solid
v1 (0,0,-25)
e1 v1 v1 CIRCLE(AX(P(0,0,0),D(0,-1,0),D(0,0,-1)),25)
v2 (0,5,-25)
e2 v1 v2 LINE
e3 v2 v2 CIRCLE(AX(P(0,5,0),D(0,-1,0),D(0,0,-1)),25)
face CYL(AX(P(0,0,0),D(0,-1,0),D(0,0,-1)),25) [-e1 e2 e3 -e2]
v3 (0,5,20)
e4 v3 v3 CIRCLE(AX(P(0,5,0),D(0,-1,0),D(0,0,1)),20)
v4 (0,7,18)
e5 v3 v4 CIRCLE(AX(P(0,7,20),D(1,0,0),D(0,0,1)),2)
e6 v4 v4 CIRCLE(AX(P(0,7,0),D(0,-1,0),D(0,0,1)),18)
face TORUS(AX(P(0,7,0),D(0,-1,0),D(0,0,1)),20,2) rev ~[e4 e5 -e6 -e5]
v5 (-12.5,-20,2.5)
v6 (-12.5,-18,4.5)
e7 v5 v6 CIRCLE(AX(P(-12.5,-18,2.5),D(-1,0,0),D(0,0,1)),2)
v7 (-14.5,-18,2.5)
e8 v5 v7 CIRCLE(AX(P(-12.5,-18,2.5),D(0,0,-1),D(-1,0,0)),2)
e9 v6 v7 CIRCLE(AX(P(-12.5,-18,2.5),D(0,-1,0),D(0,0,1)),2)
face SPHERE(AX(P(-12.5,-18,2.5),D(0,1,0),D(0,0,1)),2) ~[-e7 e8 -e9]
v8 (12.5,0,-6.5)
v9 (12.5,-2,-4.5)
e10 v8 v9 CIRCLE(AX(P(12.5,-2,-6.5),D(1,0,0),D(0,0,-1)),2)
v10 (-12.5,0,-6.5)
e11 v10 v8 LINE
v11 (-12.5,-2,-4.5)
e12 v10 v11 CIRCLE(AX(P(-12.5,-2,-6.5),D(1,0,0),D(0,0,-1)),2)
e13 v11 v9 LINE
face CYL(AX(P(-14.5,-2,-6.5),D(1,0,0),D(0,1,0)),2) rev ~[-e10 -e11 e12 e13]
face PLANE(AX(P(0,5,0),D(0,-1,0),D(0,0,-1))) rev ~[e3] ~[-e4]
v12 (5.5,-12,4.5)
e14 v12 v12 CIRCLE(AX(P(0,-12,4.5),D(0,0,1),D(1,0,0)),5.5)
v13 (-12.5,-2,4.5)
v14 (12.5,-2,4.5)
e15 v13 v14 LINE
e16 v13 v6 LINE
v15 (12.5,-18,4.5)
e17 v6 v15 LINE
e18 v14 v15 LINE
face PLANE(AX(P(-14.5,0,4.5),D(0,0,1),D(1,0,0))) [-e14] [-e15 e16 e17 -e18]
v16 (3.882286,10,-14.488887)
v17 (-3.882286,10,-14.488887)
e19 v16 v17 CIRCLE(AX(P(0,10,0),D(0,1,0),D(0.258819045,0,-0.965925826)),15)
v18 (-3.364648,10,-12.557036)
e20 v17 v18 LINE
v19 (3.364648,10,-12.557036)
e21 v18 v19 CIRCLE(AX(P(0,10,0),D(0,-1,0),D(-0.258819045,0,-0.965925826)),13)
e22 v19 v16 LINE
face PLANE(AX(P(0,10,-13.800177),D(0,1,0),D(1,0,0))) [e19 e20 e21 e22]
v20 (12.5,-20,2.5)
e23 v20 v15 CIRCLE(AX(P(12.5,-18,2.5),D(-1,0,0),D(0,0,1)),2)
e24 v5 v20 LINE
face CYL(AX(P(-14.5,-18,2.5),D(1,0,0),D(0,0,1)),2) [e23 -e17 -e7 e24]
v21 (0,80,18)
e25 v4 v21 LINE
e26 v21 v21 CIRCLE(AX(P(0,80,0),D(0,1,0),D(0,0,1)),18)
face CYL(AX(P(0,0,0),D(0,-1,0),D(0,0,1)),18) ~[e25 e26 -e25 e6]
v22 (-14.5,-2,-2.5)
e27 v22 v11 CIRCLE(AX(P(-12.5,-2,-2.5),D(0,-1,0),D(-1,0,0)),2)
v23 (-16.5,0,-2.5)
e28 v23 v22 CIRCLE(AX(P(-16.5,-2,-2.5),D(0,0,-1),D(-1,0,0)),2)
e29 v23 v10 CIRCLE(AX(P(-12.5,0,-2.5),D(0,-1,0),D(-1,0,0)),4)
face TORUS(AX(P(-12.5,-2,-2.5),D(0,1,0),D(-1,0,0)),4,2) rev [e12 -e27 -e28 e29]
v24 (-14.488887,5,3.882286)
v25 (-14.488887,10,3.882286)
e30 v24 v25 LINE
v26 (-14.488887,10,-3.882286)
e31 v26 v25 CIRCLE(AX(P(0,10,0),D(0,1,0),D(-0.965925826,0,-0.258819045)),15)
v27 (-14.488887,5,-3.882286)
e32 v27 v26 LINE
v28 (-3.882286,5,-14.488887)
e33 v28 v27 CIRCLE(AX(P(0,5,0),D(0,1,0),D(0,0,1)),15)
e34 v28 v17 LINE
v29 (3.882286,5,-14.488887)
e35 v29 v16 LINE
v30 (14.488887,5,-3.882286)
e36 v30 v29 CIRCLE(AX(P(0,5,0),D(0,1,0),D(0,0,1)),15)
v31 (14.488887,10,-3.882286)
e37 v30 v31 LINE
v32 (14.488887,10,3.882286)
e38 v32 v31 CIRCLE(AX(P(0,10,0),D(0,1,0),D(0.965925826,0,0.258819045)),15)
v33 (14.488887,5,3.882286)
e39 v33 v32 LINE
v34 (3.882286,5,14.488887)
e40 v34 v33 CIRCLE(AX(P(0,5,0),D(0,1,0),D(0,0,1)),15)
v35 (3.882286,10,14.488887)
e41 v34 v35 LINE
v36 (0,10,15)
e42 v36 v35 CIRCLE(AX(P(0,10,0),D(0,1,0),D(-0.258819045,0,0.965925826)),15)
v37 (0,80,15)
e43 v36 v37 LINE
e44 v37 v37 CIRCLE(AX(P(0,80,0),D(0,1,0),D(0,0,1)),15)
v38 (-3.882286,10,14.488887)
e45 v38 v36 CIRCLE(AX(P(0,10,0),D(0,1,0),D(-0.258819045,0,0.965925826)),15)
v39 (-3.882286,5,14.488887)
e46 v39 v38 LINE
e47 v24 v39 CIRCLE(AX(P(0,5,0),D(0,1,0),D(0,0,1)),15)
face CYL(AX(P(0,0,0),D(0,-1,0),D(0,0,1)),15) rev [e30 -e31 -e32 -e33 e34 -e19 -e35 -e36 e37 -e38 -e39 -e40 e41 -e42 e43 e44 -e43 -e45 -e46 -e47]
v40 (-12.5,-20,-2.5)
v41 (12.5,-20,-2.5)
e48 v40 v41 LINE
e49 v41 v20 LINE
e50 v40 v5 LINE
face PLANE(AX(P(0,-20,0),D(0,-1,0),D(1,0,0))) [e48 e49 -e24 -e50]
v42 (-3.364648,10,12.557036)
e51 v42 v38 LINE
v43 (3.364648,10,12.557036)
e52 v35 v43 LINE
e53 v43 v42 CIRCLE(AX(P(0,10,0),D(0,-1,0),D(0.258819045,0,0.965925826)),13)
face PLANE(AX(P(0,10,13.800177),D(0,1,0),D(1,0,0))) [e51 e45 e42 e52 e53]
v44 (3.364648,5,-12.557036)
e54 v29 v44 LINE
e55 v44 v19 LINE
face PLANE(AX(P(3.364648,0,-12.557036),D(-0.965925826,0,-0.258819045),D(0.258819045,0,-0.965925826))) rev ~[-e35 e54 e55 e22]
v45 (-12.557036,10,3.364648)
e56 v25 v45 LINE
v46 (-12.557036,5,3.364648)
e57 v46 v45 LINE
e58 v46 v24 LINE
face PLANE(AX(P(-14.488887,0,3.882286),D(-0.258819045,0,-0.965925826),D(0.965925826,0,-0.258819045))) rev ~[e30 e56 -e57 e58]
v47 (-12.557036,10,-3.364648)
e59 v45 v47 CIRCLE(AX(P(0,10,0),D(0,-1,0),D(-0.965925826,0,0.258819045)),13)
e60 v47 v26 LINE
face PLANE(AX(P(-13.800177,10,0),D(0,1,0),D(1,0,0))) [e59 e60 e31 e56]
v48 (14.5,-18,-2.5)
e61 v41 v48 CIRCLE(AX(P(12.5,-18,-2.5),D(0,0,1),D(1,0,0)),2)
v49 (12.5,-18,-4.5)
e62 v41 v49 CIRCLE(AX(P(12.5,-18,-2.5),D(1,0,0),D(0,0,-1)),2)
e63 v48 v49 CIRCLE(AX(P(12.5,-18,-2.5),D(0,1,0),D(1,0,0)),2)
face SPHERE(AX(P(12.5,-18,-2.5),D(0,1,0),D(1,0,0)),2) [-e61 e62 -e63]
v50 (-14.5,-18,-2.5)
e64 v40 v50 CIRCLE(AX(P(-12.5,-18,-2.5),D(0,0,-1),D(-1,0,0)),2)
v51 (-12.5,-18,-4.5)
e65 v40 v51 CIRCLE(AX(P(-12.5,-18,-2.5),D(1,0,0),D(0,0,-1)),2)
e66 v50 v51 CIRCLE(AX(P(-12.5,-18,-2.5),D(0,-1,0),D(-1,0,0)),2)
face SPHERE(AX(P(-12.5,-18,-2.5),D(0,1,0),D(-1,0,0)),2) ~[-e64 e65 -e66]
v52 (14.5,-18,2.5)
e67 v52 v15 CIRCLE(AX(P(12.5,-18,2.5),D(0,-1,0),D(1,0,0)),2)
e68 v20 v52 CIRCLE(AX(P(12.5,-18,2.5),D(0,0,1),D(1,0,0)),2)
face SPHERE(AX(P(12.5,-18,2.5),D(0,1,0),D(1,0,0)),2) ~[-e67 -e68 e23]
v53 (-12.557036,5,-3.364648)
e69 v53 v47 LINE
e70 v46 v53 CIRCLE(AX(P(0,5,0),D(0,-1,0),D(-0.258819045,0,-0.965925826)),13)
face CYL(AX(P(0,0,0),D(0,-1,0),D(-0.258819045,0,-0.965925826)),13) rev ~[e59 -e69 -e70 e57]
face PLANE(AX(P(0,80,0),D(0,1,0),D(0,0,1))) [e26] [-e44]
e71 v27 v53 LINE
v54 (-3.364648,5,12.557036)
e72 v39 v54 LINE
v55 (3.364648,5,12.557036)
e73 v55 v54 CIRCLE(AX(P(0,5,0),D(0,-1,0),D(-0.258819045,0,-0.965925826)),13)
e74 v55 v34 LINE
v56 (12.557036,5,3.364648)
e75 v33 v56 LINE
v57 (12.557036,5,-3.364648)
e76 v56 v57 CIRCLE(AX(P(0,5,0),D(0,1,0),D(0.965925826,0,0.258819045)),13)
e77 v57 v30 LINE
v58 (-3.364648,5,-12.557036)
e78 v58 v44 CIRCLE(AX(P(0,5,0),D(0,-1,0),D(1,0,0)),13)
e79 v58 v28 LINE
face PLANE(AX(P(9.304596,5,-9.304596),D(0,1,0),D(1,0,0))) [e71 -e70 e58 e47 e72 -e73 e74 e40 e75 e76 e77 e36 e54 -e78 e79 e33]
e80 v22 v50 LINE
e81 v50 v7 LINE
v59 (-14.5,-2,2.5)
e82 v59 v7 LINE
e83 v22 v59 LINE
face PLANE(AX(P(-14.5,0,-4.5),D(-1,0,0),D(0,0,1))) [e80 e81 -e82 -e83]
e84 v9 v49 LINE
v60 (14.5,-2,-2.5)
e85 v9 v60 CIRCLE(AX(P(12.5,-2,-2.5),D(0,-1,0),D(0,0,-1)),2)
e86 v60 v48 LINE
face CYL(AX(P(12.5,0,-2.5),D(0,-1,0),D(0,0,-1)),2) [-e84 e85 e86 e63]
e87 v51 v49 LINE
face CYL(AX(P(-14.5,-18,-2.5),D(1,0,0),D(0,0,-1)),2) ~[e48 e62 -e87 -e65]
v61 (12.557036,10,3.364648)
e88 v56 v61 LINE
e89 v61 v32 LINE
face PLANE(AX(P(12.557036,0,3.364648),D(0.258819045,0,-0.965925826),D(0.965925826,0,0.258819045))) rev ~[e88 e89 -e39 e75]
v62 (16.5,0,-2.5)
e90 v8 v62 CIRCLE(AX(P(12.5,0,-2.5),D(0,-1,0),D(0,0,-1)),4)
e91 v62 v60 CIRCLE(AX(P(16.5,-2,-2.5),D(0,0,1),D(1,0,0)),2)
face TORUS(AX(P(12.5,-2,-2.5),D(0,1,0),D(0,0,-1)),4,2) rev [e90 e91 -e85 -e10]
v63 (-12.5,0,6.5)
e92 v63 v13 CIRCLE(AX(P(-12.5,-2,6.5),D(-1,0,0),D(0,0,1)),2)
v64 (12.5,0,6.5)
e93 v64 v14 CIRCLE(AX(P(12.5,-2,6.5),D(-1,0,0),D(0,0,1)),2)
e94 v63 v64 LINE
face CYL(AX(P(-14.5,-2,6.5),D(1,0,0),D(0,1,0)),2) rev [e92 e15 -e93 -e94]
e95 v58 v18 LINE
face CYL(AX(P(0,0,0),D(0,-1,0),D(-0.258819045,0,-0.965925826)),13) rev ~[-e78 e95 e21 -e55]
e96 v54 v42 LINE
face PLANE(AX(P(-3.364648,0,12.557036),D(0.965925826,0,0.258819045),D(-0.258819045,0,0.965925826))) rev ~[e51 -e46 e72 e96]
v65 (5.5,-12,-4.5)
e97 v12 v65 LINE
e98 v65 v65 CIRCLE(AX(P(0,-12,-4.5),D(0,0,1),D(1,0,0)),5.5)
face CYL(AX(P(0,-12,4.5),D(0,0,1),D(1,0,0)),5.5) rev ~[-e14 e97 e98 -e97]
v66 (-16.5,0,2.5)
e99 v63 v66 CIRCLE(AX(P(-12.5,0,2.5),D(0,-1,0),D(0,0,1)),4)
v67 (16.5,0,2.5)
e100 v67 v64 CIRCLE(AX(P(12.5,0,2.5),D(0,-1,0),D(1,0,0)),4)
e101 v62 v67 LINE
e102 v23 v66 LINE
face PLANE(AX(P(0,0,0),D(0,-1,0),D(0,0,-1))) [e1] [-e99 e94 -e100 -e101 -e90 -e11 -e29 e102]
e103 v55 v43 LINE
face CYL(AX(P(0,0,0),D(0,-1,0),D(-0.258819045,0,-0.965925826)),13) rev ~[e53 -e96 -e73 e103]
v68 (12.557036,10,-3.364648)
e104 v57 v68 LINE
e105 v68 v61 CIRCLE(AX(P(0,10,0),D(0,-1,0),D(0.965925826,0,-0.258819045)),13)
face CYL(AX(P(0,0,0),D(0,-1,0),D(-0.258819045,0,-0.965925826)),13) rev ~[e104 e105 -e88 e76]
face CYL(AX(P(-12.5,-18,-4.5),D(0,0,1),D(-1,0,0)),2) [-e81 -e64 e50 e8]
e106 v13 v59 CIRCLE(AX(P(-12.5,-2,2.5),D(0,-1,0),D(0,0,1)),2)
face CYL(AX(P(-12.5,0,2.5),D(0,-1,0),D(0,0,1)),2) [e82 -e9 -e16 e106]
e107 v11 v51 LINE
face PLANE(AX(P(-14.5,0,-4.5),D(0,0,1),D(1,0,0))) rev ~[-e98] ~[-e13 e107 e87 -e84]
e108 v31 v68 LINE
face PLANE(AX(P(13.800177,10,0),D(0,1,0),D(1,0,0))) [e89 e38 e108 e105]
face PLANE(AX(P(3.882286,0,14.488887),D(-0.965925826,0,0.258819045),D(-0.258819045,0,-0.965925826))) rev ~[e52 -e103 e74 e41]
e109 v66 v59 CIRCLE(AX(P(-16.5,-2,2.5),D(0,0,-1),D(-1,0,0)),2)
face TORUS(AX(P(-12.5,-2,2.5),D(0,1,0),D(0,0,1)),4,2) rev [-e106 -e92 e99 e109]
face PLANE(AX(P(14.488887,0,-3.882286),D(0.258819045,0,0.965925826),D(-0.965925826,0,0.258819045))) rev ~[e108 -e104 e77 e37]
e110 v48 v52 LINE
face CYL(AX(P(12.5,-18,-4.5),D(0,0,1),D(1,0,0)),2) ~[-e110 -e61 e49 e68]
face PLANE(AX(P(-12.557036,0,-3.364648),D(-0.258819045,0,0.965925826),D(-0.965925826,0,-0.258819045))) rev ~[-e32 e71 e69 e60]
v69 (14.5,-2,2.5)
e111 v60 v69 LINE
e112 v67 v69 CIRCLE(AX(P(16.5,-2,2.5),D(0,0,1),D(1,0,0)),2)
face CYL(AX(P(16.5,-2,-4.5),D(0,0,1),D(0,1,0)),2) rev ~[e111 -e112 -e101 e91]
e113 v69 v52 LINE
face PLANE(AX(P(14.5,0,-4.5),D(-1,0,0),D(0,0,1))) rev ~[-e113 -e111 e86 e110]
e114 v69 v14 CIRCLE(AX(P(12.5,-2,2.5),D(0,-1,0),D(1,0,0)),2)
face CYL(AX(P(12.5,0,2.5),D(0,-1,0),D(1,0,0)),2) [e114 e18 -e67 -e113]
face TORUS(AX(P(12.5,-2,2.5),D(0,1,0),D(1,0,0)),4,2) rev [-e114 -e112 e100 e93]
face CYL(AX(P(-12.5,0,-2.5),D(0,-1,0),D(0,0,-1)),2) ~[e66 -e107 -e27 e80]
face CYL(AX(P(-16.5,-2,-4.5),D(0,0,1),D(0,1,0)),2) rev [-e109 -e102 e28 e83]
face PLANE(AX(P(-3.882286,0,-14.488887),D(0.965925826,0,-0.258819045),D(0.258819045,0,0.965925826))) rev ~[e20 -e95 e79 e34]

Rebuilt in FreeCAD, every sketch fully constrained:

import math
import FreeCAD as App
import Part
import Sketcher

V = App.Vector
Q = App.Units.Quantity


def edges_at(feature, points):
    """Names of the edges that pass closest to the given points."""
    edges = feature.Shape.Edges
    near = lambda p: min(range(len(edges)), key=lambda i: edges[i].distToShape(Part.Vertex(*p))[0])
    return sorted({f"Edge{near(p) + 1}" for p in points})


def add_polygon(sketch, points):
    """Adds a closed chain of lines whose ends are joined by coincident constraints."""
    first, n = sketch.GeometryCount, len(points)
    for a, b in zip(points, points[1:] + points[:1]):
        sketch.addGeometry(Part.LineSegment(App.Vector(*a, 0), App.Vector(*b, 0)), False)
    for i in range(n):
        sketch.addConstraint(Sketcher.Constraint("Coincident", first + i, 2, first + (i + 1) % n, 1))

doc = App.newDocument("Part")
body = doc.addObject("PartDesign::Body", "Body")

sketch1 = body.newObject("Sketcher::SketchObject", "Sketch")
sketch1.AttachmentSupport = (doc.getObject("XZ_Plane"), [""])
sketch1.MapMode = "FlatFace"
sketch1.addGeometry(Part.Circle(V(0, 0, 0), V(0, 0, 1), 18), False)
sketch1.addGeometry(Part.Circle(V(0, 0, 0), V(0, 0, 1), 15), False)
sketch1.addConstraint(Sketcher.Constraint("Coincident", 0, 3, -1, 1))
sketch1.addConstraint(Sketcher.Constraint("Coincident", 1, 3, -1, 1))
sketch1.addConstraint(Sketcher.Constraint("Diameter", 0, Q("36 mm")))
sketch1.addConstraint(Sketcher.Constraint("Diameter", 1, Q("30 mm")))
pad1 = body.newObject("PartDesign::Pad", "Pad")
pad1.Profile = sketch1
pad1.Length = 80
pad1.Reversed = True

sketch2 = body.newObject("Sketcher::SketchObject", "Sketch001")
sketch2.AttachmentSupport = (doc.getObject("XZ_Plane"), [""])
sketch2.MapMode = "FlatFace"
sketch2.addGeometry(Part.Circle(V(0, 0, 0), V(0, 0, 1), 15), False)
sketch2.addGeometry(Part.Circle(V(0, 0, 0), V(0, 0, 1), 13), False)
sketch2.addConstraint(Sketcher.Constraint("Coincident", 0, 3, -1, 1))
sketch2.addConstraint(Sketcher.Constraint("Coincident", 1, 3, -1, 1))
sketch2.addConstraint(Sketcher.Constraint("Diameter", 0, Q("30 mm")))
sketch2.addConstraint(Sketcher.Constraint("Diameter", 1, Q("26 mm")))
pad2 = body.newObject("PartDesign::Pad", "Pad001")
pad2.Profile = sketch2
pad2.Length = 5
pad2.Reversed = True

sketch3 = body.newObject("Sketcher::SketchObject", "Sketch002")
sketch3.AttachmentSupport = (doc.getObject("XZ_Plane"), [""])
sketch3.MapMode = "FlatFace"
sketch3.addGeometry(Part.LineSegment(V(-12.6, -3.4, 0), V(-14.5, -3.9, 0)), False)
sketch3.addGeometry(Part.ArcOfCircle(Part.Circle(V(0, 0, 0), V(0, 0, 1), 15), math.radians(165), math.radians(195)), False)
sketch3.addGeometry(Part.LineSegment(V(-14.5, 3.9, 0), V(-12.6, 3.4, 0)), False)
sketch3.addGeometry(Part.ArcOfCircle(Part.Circle(V(0, 0, 0), V(0, 0, 1), 13), math.radians(165), math.radians(195)), False)
sketch3.addGeometry(Part.LineSegment(V(3.4, -12.6, 0), V(3.9, -14.5, 0)), False)
sketch3.addGeometry(Part.ArcOfCircle(Part.Circle(V(0, 0, 0), V(0, 0, 1), 15), math.radians(-105), math.radians(-75)), False)
sketch3.addGeometry(Part.LineSegment(V(-3.9, -14.5, 0), V(-3.4, -12.6, 0)), False)
sketch3.addGeometry(Part.ArcOfCircle(Part.Circle(V(0, 0, 0), V(0, 0, 1), 13), math.radians(-105), math.radians(-75)), False)
sketch3.addGeometry(Part.ArcOfCircle(Part.Circle(V(0, 0, 0), V(0, 0, 1), 15), math.radians(75), math.radians(105)), False)
sketch3.addGeometry(Part.LineSegment(V(3.9, 14.5, 0), V(3.4, 12.6, 0)), False)
sketch3.addGeometry(Part.ArcOfCircle(Part.Circle(V(0, 0, 0), V(0, 0, 1), 13), math.radians(75), math.radians(105)), False)
sketch3.addGeometry(Part.LineSegment(V(-3.4, 12.6, 0), V(-3.9, 14.5, 0)), False)
sketch3.addGeometry(Part.LineSegment(V(14.5, -3.9, 0), V(12.6, -3.4, 0)), False)
sketch3.addGeometry(Part.ArcOfCircle(Part.Circle(V(0, 0, 0), V(0, 0, 1), 13), math.radians(-15), math.radians(15)), False)
sketch3.addGeometry(Part.LineSegment(V(12.6, 3.4, 0), V(14.5, 3.9, 0)), False)
sketch3.addGeometry(Part.ArcOfCircle(Part.Circle(V(0, 0, 0), V(0, 0, 1), 15), math.radians(-15), math.radians(15)), False)
sketch3.addConstraint(Sketcher.Constraint("Coincident", 0, 2, 1, 2))
sketch3.addConstraint(Sketcher.Constraint("Coincident", 1, 1, 2, 1))
sketch3.addConstraint(Sketcher.Constraint("Coincident", 2, 2, 3, 1))
sketch3.addConstraint(Sketcher.Constraint("Coincident", 3, 2, 0, 1))
sketch3.addConstraint(Sketcher.Constraint("Coincident", 4, 2, 5, 2))
sketch3.addConstraint(Sketcher.Constraint("Coincident", 5, 1, 6, 1))
sketch3.addConstraint(Sketcher.Constraint("Coincident", 6, 2, 7, 1))
sketch3.addConstraint(Sketcher.Constraint("Coincident", 7, 2, 4, 1))
sketch3.addConstraint(Sketcher.Constraint("Coincident", 8, 1, 9, 1))
sketch3.addConstraint(Sketcher.Constraint("Coincident", 9, 2, 10, 1))
sketch3.addConstraint(Sketcher.Constraint("Coincident", 10, 2, 11, 1))
sketch3.addConstraint(Sketcher.Constraint("Coincident", 11, 2, 8, 2))
sketch3.addConstraint(Sketcher.Constraint("Coincident", 12, 2, 13, 1))
sketch3.addConstraint(Sketcher.Constraint("Coincident", 13, 2, 14, 1))
sketch3.addConstraint(Sketcher.Constraint("Coincident", 14, 2, 15, 2))
sketch3.addConstraint(Sketcher.Constraint("Coincident", 15, 1, 12, 1))
sketch3.addConstraint(Sketcher.Constraint("Coincident", 1, 3, -1, 1))
sketch3.addConstraint(Sketcher.Constraint("Coincident", 3, 3, -1, 1))
sketch3.addConstraint(Sketcher.Constraint("Coincident", 5, 3, -1, 1))
sketch3.addConstraint(Sketcher.Constraint("Coincident", 7, 3, -1, 1))
sketch3.addConstraint(Sketcher.Constraint("Coincident", 8, 3, -1, 1))
sketch3.addConstraint(Sketcher.Constraint("Coincident", 10, 3, -1, 1))
sketch3.addConstraint(Sketcher.Constraint("Coincident", 13, 3, -1, 1))
sketch3.addConstraint(Sketcher.Constraint("Coincident", 15, 3, -1, 1))
sketch3.addConstraint(Sketcher.Constraint("Equal", 1, 5))
sketch3.addConstraint(Sketcher.Constraint("Equal", 3, 7))
sketch3.addConstraint(Sketcher.Constraint("Equal", 5, 8))
sketch3.addConstraint(Sketcher.Constraint("Equal", 7, 10))
sketch3.addConstraint(Sketcher.Constraint("Equal", 10, 13))
sketch3.addConstraint(Sketcher.Constraint("Equal", 8, 15))
sketch3.addConstraint(Sketcher.Constraint("Perpendicular", 0, 4))
sketch3.addConstraint(Sketcher.Constraint("Perpendicular", 2, 6))
sketch3.addConstraint(Sketcher.Constraint("Parallel", 6, 9))
sketch3.addConstraint(Sketcher.Constraint("Parallel", 4, 11))
sketch3.addConstraint(Sketcher.Constraint("Perpendicular", 9, 12))
sketch3.addConstraint(Sketcher.Constraint("Perpendicular", 11, 14))
sketch3.addConstraint(Sketcher.Constraint("Horizontal", 4, 2, 5, 1))
sketch3.addConstraint(Sketcher.Constraint("Horizontal", 6, 2, 7, 2))
sketch3.addConstraint(Sketcher.Constraint("Horizontal", 9, 2, 10, 2))
sketch3.addConstraint(Sketcher.Constraint("Horizontal", 3, 2, 12, 2))
sketch3.addConstraint(Sketcher.Constraint("Horizontal", 2, 2, 13, 2))
sketch3.addConstraint(Sketcher.Constraint("Vertical", 0, 2, 1, 1))
sketch3.addConstraint(Sketcher.Constraint("Vertical", 4, 2, 8, 1))
sketch3.addConstraint(Sketcher.Constraint("Radius", 1, Q("15 mm")))
sketch3.addConstraint(Sketcher.Constraint("Radius", 3, Q("13 mm")))
sketch3.addConstraint(Sketcher.Constraint("Angle", 0, Q("-165 deg")))
sketch3.addConstraint(Sketcher.Constraint("DistanceX", 0, 2, 5, 1, Q("10.606602 mm")))
sketch3.addConstraint(Sketcher.Constraint("DistanceY", 5, 1, 0, 2, Q("10.606602 mm")))
pad3 = body.newObject("PartDesign::Pad", "Pad002")
pad3.Profile = sketch3
pad3.Length = 10
pad3.Reversed = True

sketch4 = body.newObject("Sketcher::SketchObject", "Sketch003")
sketch4.AttachmentSupport = (doc.getObject("XZ_Plane"), [""])
sketch4.MapMode = "FlatFace"
sketch4.addGeometry(Part.Circle(V(0, 0, 0), V(0, 0, 1), 25), False)
sketch4.addGeometry(Part.Circle(V(0, 0, 0), V(0, 0, 1), 18), False)
sketch4.addGeometry(Part.Circle(V(0, 0, 0), V(0, 0, 1), 13), False)
sketch4.addConstraint(Sketcher.Constraint("Coincident", 0, 3, -1, 1))
sketch4.addConstraint(Sketcher.Constraint("Coincident", 1, 3, -1, 1))
sketch4.addConstraint(Sketcher.Constraint("Coincident", 2, 3, -1, 1))
sketch4.addConstraint(Sketcher.Constraint("Diameter", 0, Q("50 mm")))
sketch4.addConstraint(Sketcher.Constraint("Diameter", 1, Q("36 mm")))
sketch4.addConstraint(Sketcher.Constraint("Diameter", 2, Q("26 mm")))
pad4 = body.newObject("PartDesign::Pad", "Pad003")
pad4.Profile = sketch4
pad4.Length = 5
pad4.Reversed = True

sketch5 = body.newObject("Sketcher::SketchObject", "Sketch004")
sketch5.AttachmentSupport = (doc.getObject("XZ_Plane"), [""])
sketch5.MapMode = "FlatFace"
add_polygon(sketch5, [(-14, 4), (-14, -4), (14, -4), (14, 4)])
sketch5.addConstraint(Sketcher.Constraint("Vertical", 0))
sketch5.addConstraint(Sketcher.Constraint("Horizontal", 1))
sketch5.addConstraint(Sketcher.Constraint("Vertical", 2))
sketch5.addConstraint(Sketcher.Constraint("Horizontal", 3))
sketch5.addConstraint(Sketcher.Constraint("Symmetric", 0, 2, 2, 2, -1, 1))
sketch5.addConstraint(Sketcher.Constraint("DistanceX", 1, 1, 1, 2, Q("29 mm")))
sketch5.addConstraint(Sketcher.Constraint("DistanceY", 0, 2, 0, 1, Q("9 mm")))
pad5 = body.newObject("PartDesign::Pad", "Pad004")
pad5.Profile = sketch5
pad5.Length = 20

sketch6 = body.newObject("Sketcher::SketchObject", "Sketch005")
sketch6.AttachmentSupport = (doc.getObject("XY_Plane"), [""])
sketch6.MapMode = "FlatFace"
sketch6.AttachmentOffset = App.Placement(V(0, 0, 4.5), App.Rotation())
sketch6.addGeometry(Part.Circle(V(0, -12, 0), V(0, 0, 1), 6), False)
sketch6.addConstraint(Sketcher.Constraint("PointOnObject", 0, 3, -2))
sketch6.addConstraint(Sketcher.Constraint("Diameter", 0, Q("11 mm")))
sketch6.addConstraint(Sketcher.Constraint("DistanceY", 0, 3, -1, 1, Q("12 mm")))
pocket1 = body.newObject("PartDesign::Pocket", "Pocket")
pocket1.Profile = sketch6
pocket1.Type = "ThroughAll"
doc.recompute()

fillet = body.newObject("PartDesign::Fillet", "Fillet")
fillet.Base = (pocket1, edges_at(pocket1, [
    (0, 5, -18),
    (14.5, 0, 0),
    (14.5, -10, -4.5),
    (0, 0, 4.5),
    (14.5, -10, 4.5),
    (-14.5, 0, 0),
    (-14.5, -10, 4.5),
    (0, 0, -4.5),
    (-14.5, -10, -4.5),
    (14.5, -20, 0),
    (0, -20, 4.5),
    (-14.5, -20, 0),
    (0, -20, -4.5),
]))
fillet.Radius = 2

doc.recompute()
